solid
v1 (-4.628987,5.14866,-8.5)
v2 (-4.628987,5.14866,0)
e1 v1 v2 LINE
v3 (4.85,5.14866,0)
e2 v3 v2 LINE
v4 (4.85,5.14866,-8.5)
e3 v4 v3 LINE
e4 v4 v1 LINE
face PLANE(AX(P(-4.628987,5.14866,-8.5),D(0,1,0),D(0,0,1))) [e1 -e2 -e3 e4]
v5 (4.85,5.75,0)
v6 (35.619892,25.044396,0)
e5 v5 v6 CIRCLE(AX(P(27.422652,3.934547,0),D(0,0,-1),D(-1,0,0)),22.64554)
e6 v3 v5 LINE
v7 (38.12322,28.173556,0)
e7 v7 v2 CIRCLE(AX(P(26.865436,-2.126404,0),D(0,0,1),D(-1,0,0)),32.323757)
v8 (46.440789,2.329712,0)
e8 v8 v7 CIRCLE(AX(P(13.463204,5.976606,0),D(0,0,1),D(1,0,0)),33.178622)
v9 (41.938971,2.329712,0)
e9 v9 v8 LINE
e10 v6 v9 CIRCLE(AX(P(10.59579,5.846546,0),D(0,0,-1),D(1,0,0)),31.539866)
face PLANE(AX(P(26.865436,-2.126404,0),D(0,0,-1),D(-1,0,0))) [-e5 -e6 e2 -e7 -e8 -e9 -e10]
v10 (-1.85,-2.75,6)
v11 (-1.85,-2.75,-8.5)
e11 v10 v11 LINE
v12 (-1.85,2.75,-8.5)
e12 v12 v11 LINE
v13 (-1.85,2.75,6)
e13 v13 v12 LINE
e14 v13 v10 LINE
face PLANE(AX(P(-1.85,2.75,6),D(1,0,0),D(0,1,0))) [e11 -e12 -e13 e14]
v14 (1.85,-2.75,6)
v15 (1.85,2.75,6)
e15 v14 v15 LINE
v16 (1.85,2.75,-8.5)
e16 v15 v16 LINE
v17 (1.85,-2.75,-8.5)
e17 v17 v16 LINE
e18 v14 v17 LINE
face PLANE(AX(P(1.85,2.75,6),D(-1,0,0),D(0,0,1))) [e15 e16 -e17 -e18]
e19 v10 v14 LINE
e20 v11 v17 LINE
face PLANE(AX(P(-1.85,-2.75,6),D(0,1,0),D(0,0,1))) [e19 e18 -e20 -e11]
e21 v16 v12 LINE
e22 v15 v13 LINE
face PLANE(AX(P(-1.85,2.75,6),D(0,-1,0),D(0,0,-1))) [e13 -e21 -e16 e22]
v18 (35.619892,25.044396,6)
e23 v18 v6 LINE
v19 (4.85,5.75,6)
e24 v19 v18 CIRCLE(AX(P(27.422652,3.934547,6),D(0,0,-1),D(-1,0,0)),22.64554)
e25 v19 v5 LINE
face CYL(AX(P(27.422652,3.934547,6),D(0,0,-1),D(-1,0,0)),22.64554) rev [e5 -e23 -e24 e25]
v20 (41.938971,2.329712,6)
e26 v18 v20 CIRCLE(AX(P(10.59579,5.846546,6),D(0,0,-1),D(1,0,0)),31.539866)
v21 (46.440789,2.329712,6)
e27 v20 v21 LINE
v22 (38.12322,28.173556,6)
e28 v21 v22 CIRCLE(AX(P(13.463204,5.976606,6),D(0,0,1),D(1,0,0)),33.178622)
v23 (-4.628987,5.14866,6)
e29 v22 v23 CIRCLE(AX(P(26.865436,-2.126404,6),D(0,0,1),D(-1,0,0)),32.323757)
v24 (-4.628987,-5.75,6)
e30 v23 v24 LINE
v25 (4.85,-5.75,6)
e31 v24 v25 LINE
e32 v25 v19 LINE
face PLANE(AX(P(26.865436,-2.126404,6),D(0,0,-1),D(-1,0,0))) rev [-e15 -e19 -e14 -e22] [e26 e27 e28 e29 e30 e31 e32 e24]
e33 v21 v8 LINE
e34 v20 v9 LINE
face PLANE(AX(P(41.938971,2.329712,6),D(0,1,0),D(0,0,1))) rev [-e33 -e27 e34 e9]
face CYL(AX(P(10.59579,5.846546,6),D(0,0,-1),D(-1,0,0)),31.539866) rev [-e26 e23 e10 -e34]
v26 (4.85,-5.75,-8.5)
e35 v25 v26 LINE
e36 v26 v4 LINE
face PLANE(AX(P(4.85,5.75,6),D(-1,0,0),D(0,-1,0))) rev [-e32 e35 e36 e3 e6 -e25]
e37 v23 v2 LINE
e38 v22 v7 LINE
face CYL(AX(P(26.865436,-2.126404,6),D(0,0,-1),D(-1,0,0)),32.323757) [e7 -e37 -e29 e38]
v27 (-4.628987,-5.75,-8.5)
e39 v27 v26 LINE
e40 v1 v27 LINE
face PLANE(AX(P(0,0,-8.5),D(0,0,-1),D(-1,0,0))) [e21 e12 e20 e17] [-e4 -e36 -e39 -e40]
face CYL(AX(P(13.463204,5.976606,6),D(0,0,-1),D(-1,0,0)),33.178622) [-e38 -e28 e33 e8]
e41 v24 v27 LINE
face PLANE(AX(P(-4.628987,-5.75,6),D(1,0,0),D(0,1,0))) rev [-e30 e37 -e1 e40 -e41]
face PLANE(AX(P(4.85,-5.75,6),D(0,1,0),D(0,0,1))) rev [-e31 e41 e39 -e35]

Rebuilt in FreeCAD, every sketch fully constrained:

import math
import FreeCAD as App
import Part
import Sketcher

V = App.Vector
Q = App.Units.Quantity

doc = App.newDocument("Part")
params = doc.addObject("Spreadsheet::Sheet", "Params")
for row, (alias, value) in enumerate([
    ("sketch1_width", "3.7 mm"),
    ("sketch1_height", "11.5 mm"),
    ("sketch1_height2", "5.5 mm"),
    ("pad1_length", "6 mm"),
    ("sketch2_width", "3.7 mm"),
    ("sketch2_height", "5.5 mm"),
    ("pad2_length", "8.5 mm"),
], start=1):
    params.set(f"A{row}", alias)
    params.set(f"B{row}", "=" + value)
    params.setAlias(f"B{row}", alias)

body = doc.addObject("PartDesign::Body", "Body")

# Sketch on XY plane
sketch1 = doc.addObject("Sketcher::SketchObject", "Sketch")
body.addObject(sketch1)
sketch1.AttachmentSupport = (doc.XY_Plane, [""])
sketch1.MapMode = "FlatFace"
sketch1.addGeometry([
    Part.LineSegment(V(4.85, -5.75, 0), V(4.85, 5.75, 0)),  # 0
    Part.ArcOfCircle(Part.Circle(V(27.422652, 3.934547, 0), V(0, 0, 1), 22.64554), math.radians(68.778134), math.radians(175.401764)),  # 1
    Part.ArcOfCircle(Part.Circle(V(10.59579, 5.846546, 0), V(0, 0, 1), 31.539866), math.radians(-6.402045), math.radians(37.494496)),  # 2
    Part.LineSegment(V(41.938971, 2.329712, 0), V(46.440789, 2.329712, 0)),  # 3
    Part.ArcOfCircle(Part.Circle(V(13.463204, 5.976606, 0), V(0, 0, 1), 33.178622), math.radians(-6.31053), math.radians(41.990981)),  # 4
    Part.ArcOfCircle(Part.Circle(V(26.865436, -2.126404, 0), V(0, 0, 1), 32.323757), math.radians(69.617728), math.radians(166.993086)),  # 5
    Part.LineSegment(V(-4.628987, 5.14866, 0), V(-4.628987, -5.75, 0)),  # 6
    Part.LineSegment(V(-4.628987, -5.75, 0), V(4.85, -5.75, 0)),  # 7
    Part.LineSegment(V(-1.85, -2.75, 0), V(-1.85, 2.75, 0)),  # 8
    Part.LineSegment(V(-1.85, 2.75, 0), V(1.85, 2.75, 0)),  # 9
    Part.LineSegment(V(1.85, 2.75, 0), V(1.85, -2.75, 0)),  # 10
    Part.LineSegment(V(1.85, -2.75, 0), V(-1.85, -2.75, 0)),  # 11
], False)
sketch1.addConstraint([
    Sketcher.Constraint("Coincident", 0, 2, 1, 2),
    Sketcher.Constraint("Coincident", 1, 1, 2, 2),
    Sketcher.Constraint("Coincident", 2, 1, 3, 1),
    Sketcher.Constraint("Coincident", 3, 2, 4, 1),
    Sketcher.Constraint("Coincident", 4, 2, 5, 1),
    Sketcher.Constraint("Coincident", 5, 2, 6, 1),
    Sketcher.Constraint("Coincident", 6, 2, 7, 1),
    Sketcher.Constraint("Coincident", 7, 2, 0, 1),
    Sketcher.Constraint("Coincident", 8, 2, 9, 1),
    Sketcher.Constraint("Coincident", 9, 2, 10, 1),
    Sketcher.Constraint("Coincident", 10, 2, 11, 1),
    Sketcher.Constraint("Coincident", 11, 2, 8, 1),
    Sketcher.Constraint("Vertical", 0),
    Sketcher.Constraint("Horizontal", 3),
    Sketcher.Constraint("Vertical", 6),
    Sketcher.Constraint("Horizontal", 7),
    Sketcher.Constraint("Vertical", 8),
    Sketcher.Constraint("Horizontal", 9),
    Sketcher.Constraint("Vertical", 10),
    Sketcher.Constraint("Horizontal", 11),
    Sketcher.Constraint("Symmetric", 8, 2, 10, 2, -1, 1),
    Sketcher.Constraint("DistanceX", 9, 1, 9, 2, Q("3.7 mm")),
    Sketcher.Constraint("DistanceY", 0, 1, 0, 2, Q("11.5 mm")),
    Sketcher.Constraint("DistanceY", 8, 1, 8, 2, Q("5.5 mm")),
    Sketcher.Constraint("DistanceY", 8, 2, 0, 2, Q("3 mm")),
    Sketcher.Constraint("DistanceX", 9, 2, 0, 2, Q("3 mm")),
    Sketcher.Constraint("Radius", 1, Q("22.64554 mm")),
    Sketcher.Constraint("Radius", 2, Q("31.539866 mm")),
    Sketcher.Constraint("Radius", 4, Q("33.178622 mm")),
    Sketcher.Constraint("Radius", 5, Q("32.323757 mm")),
    Sketcher.Constraint("DistanceY", 1, 3, 2, 3, Q("1.911999 mm")),
    Sketcher.Constraint("DistanceX", 3, 1, 3, 2, Q("4.501818 mm")),
    Sketcher.Constraint("DistanceY", 6, 2, 6, 1, Q("10.89866 mm")),
    Sketcher.Constraint("DistanceY", 5, 3, 1, 1, Q("27.1708 mm")),
    Sketcher.Constraint("DistanceX", 2, 3, 1, 1, Q("25.024102 mm")),
    Sketcher.Constraint("DistanceX", 7, 1, 7, 2, Q("9.478987 mm")),
    Sketcher.Constraint("DistanceX", -1, 1, 1, 3, Q("27.422652 mm")),
    Sketcher.Constraint("DistanceX", -1, 1, 2, 1, Q("41.938971 mm")),
    Sketcher.Constraint("DistanceX", -1, 1, 4, 2, Q("38.12322 mm")),
])
sketch1.setExpression("Constraints[21]", "Params.sketch1_width")
sketch1.setExpression("Constraints[22]", "Params.sketch1_height")
sketch1.setExpression("Constraints[23]", "Params.sketch1_height2")
pad1 = doc.addObject("PartDesign::Pad", "Pad")
body.addObject(pad1)
pad1.Profile = sketch1
pad1.setExpression("Length", "Params.pad1_length")

# Sketch on XY plane
sketch2 = doc.addObject("Sketcher::SketchObject", "Sketch001")
body.addObject(sketch2)
sketch2.AttachmentSupport = (doc.XY_Plane, [""])
sketch2.MapMode = "FlatFace"
sketch2.addGeometry([
    Part.LineSegment(V(-4.628987, 5.14866, 0), V(-4.628987, -5.75, 0)),  # 0
    Part.LineSegment(V(-4.628987, -5.75, 0), V(4.85, -5.75, 0)),  # 1
    Part.LineSegment(V(4.85, -5.75, 0), V(4.85, 5.14866, 0)),  # 2
    Part.LineSegment(V(4.85, 5.14866, 0), V(-4.628987, 5.14866, 0)),  # 3
    Part.LineSegment(V(1.85, -2.75, 0), V(-1.85, -2.75, 0)),  # 4
    Part.LineSegment(V(-1.85, -2.75, 0), V(-1.85, 2.75, 0)),  # 5
    Part.LineSegment(V(-1.85, 2.75, 0), V(1.85, 2.75, 0)),  # 6
    Part.LineSegment(V(1.85, 2.75, 0), V(1.85, -2.75, 0)),  # 7
], False)
sketch2.addConstraint([
    Sketcher.Constraint("Coincident", 0, 2, 1, 1),
    Sketcher.Constraint("Coincident", 1, 2, 2, 1),
    Sketcher.Constraint("Coincident", 2, 2, 3, 1),
    Sketcher.Constraint("Coincident", 3, 2, 0, 1),
    Sketcher.Constraint("Coincident", 4, 2, 5, 1),
    Sketcher.Constraint("Coincident", 5, 2, 6, 1),
    Sketcher.Constraint("Coincident", 6, 2, 7, 1),
    Sketcher.Constraint("Coincident", 7, 2, 4, 1),
    Sketcher.Constraint("Vertical", 0),
    Sketcher.Constraint("Horizontal", 1),
    Sketcher.Constraint("Vertical", 2),
    Sketcher.Constraint("Horizontal", 3),
    Sketcher.Constraint("Horizontal", 4),
    Sketcher.Constraint("Vertical", 5),
    Sketcher.Constraint("Horizontal", 6),
    Sketcher.Constraint("Vertical", 7),
    Sketcher.Constraint("Symmetric", 4, 2, 6, 2, -1, 1),
    Sketcher.Constraint("DistanceX", 4, 2, 4, 1, Q("3.7 mm")),
    Sketcher.Constraint("DistanceY", 5, 1, 5, 2, Q("5.5 mm")),
    Sketcher.Constraint("DistanceY", 0, 2, 4, 2, Q("3 mm")),
    Sketcher.Constraint("DistanceX", 6, 2, 2, 2, Q("3 mm")),
    Sketcher.Constraint("DistanceY", 0, 2, 0, 1, Q("10.89866 mm")),
    Sketcher.Constraint("DistanceX", 1, 1, 1, 2, Q("9.478987 mm")),
])
sketch2.setExpression("Constraints[17]", "Params.sketch2_width")
sketch2.setExpression("Constraints[18]", "Params.sketch2_height")
pad2 = doc.addObject("PartDesign::Pad", "Pad001")
body.addObject(pad2)
pad2.Profile = sketch2
pad2.setExpression("Length", "Params.pad2_length")
pad2.Reversed = True

doc.recompute()
